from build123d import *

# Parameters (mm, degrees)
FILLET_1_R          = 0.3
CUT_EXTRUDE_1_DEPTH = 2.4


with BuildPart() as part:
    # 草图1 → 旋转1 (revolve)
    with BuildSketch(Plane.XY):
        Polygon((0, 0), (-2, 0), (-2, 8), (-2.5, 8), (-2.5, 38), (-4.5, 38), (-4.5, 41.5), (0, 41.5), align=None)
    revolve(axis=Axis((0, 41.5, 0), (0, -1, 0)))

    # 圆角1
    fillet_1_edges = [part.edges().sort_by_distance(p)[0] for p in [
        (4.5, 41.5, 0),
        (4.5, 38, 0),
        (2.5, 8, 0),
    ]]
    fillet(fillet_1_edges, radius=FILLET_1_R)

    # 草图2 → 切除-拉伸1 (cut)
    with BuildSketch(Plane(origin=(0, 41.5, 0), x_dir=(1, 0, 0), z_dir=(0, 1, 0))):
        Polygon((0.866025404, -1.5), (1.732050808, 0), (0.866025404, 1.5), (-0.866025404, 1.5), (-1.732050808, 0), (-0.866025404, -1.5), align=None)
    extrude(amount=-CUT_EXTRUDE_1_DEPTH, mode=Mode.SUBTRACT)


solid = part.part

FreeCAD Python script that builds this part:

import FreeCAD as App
import Part
import Sketcher
from FreeCAD import Vector
Q = App.Units.Quantity


def edges_at(feature, points):
    """Names of the edges that pass closest to the given points."""
    edges = feature.Shape.Edges
    near = lambda p: min(range(len(edges)), key=lambda i: edges[i].distToShape(Part.Vertex(*p))[0])
    return sorted({f"Edge{near(p) + 1}" for p in points})


def add_polygon(sketch, points):
    """Adds a closed chain of lines whose ends are joined by coincident constraints."""
    first, n = sketch.GeometryCount, len(points)
    for a, b in zip(points, points[1:] + points[:1]):
        sketch.addGeometry(Part.LineSegment(App.Vector(*a, 0), App.Vector(*b, 0)), False)
    for i in range(n):
        sketch.addConstraint(Sketcher.Constraint("Coincident", first + i, 2, first + (i + 1) % n, 1))

doc = App.newDocument("Part")
params = doc.addObject("Spreadsheet::Sheet", "Params")
for row, (alias, value) in enumerate([
    ("sketch1_width", "2 mm"),
    ("sketch1_height", "30 mm"),
    ("sketch1_height2", "8 mm"),
    ("sketch1_width2", "4.5 mm"),
    ("sketch1_height3", "41.5 mm"),
    ("revolution_angle", "360 deg"),
    ("fillet_radius", "0.3 mm"),
    ("pocket1_length", "2.4 mm"),
], start=1):
    params.set(f"A{row}", alias)
    params.set(f"B{row}", "=" + value)
    params.setAlias(f"B{row}", alias)

body = doc.addObject("PartDesign::Body", "Body")

# Sketch on XY plane
sketch1 = body.newObject("Sketcher::SketchObject", "Sketch")
sketch1.AttachmentSupport = (doc.getObject("XY_Plane"), [""])
sketch1.MapMode = "FlatFace"
add_polygon(sketch1, [(-2, 0), (0, 0), (0, 41.5), (-4.5, 41.5), (-4.5, 38), (-2.5, 38), (-2.5, 8), (-2, 8)])  # lines 0-7
sketch1.addConstraint(Sketcher.Constraint("Horizontal", 0))
sketch1.addConstraint(Sketcher.Constraint("Vertical", 1))
sketch1.addConstraint(Sketcher.Constraint("Horizontal", 2))
sketch1.addConstraint(Sketcher.Constraint("Vertical", 3))
sketch1.addConstraint(Sketcher.Constraint("Horizontal", 4))
sketch1.addConstraint(Sketcher.Constraint("Vertical", 5))
sketch1.addConstraint(Sketcher.Constraint("Horizontal", 6))
sketch1.addConstraint(Sketcher.Constraint("Vertical", 7))
sketch1.addConstraint(Sketcher.Constraint("Coincident", 0, 2, -1, 1))
sketch1.addConstraint(Sketcher.Constraint("Equal", 0, 4))
sketch1.addConstraint(Sketcher.Constraint("DistanceX", 0, 1, 0, 2, 2.0))
sketch1.addConstraint(Sketcher.Constraint("DistanceY", 5, 2, 5, 1, 30.0))
sketch1.addConstraint(Sketcher.Constraint("DistanceY", 7, 2, 7, 1, 8.0))
sketch1.addConstraint(Sketcher.Constraint("DistanceX", 2, 2, 2, 1, 4.5))
sketch1.addConstraint(Sketcher.Constraint("DistanceY", 1, 1, 1, 2, 41.5))
sketch1.setExpression("Constraints[18]", "Params.sketch1_width")
sketch1.setExpression("Constraints[19]", "Params.sketch1_height")
sketch1.setExpression("Constraints[20]", "Params.sketch1_height2")
sketch1.setExpression("Constraints[21]", "Params.sketch1_width2")
sketch1.setExpression("Constraints[22]", "Params.sketch1_height3")
revolution = body.newObject("PartDesign::Revolution", "Revolution")
revolution.Profile = sketch1
revolution.ReferenceAxis = (sketch1, ["V_Axis"])
revolution.setExpression("Angle", "Params.revolution_angle")
doc.recompute()

fillet = body.newObject("PartDesign::Fillet", "Fillet")
fillet.Base = (revolution, edges_at(revolution, [(4.5, 41.5, 0), (4.5, 38, 0), (2.5, 8, 0)]))
fillet.setExpression("Radius", "Params.fillet_radius")

# Sketch on XZ plane
sketch2 = body.newObject("Sketcher::SketchObject", "Sketch001")
sketch2.AttachmentSupport = (doc.getObject("XZ_Plane"), [""])
sketch2.MapMode = "FlatFace"
sketch2.AttachmentOffset = App.Placement(Vector(0, 0, -41.5), App.Rotation())
add_polygon(sketch2, [(0.9, 1.5), (1.7, 0), (0.9, -1.5), (-0.9, -1.5), (-1.7, 0), (-0.9, 1.5)])  # lines 0-5
sketch2.addConstraint(Sketcher.Constraint("Horizontal", 2))
sketch2.addConstraint(Sketcher.Constraint("Horizontal", 5))
sketch2.addConstraint(Sketcher.Constraint("Symmetric", 0, 2, 3, 2, -1, 1))
sketch2.addConstraint(Sketcher.Constraint("Symmetric", 1, 2, 4, 2, -1, 1))
sketch2.addConstraint(Sketcher.Constraint("PointOnObject", 0, 2, -1))
sketch2.addConstraint(Sketcher.Constraint("Parallel", 0, 3))
sketch2.addConstraint(Sketcher.Constraint("Vertical", 2, 2, 4, 2))
sketch2.addConstraint(Sketcher.Constraint("Angle", 0, Q("-60 deg")))
sketch2.addConstraint(Sketcher.Constraint("DistanceY", 2, 2, 4, 2, 3.0))
sketch2.addConstraint(Sketcher.Constraint("DistanceX", 2, 2, 2, 1, 1.732051))
pocket1 = body.newObject("PartDesign::Pocket", "Pocket")
pocket1.Profile = sketch2
pocket1.setExpression("Length", "Params.pocket1_length")
pocket1.Reversed = True

doc.recompute()
